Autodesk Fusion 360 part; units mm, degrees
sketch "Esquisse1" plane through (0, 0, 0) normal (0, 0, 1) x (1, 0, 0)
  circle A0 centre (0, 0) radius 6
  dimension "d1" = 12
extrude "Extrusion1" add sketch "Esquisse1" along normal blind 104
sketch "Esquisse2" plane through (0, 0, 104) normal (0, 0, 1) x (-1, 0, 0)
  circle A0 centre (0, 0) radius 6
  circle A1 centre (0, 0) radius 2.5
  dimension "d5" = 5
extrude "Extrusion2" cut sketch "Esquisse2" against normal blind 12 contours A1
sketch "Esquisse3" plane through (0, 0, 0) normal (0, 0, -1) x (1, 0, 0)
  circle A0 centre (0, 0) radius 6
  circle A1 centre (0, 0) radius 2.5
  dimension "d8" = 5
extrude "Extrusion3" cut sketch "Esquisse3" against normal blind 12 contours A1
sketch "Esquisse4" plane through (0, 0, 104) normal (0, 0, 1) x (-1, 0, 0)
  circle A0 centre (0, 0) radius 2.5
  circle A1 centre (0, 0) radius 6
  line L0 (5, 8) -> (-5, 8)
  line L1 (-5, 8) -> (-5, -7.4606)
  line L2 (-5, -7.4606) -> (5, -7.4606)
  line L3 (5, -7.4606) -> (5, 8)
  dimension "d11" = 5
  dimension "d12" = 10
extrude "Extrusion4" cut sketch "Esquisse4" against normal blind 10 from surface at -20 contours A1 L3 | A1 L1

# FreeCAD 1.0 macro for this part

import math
import FreeCAD as App
import Part
import Sketcher
from FreeCAD import Vector
Q = App.Units.Quantity

doc = App.newDocument("Part")
body = doc.addObject("PartDesign::Body", "Body")

# Sketch on XY plane
sketch1 = body.newObject("Sketcher::SketchObject", "Sketch")
sketch1.AttachmentSupport = (doc.getObject("XY_Plane"), [""])
sketch1.MapMode = "FlatFace"
sketch1.addGeometry(Part.Circle(Vector(0, 0, 0), Vector(0, 0, 1), 6), False)
sketch1.addConstraint([
    Sketcher.Constraint("Coincident", 0, 3, -1, 1),
    Sketcher.Constraint("Diameter", 0, Q("12 mm")),
])
pad1 = body.newObject("PartDesign::Pad", "Pad")
pad1.Profile = sketch1
pad1.Length = 104

# Sketch on XY plane
sketch2 = body.newObject("Sketcher::SketchObject", "Sketch001")
sketch2.AttachmentSupport = (doc.getObject("XY_Plane"), [""])
sketch2.MapMode = "FlatFace"
sketch2.AttachmentOffset = App.Placement(Vector(0, 0, 104), App.Rotation())
sketch2.addGeometry(Part.Circle(Vector(0, 0, 0), Vector(0, 0, 1), 2.5), False)
sketch2.addConstraint([
    Sketcher.Constraint("Coincident", 0, 3, -1, 1),
    Sketcher.Constraint("Diameter", 0, Q("5 mm")),
])
pocket1 = body.newObject("PartDesign::Pocket", "Pocket")
pocket1.Profile = sketch2
pocket1.Length = 12

# Sketch on XY plane
sketch3 = body.newObject("Sketcher::SketchObject", "Sketch002")
sketch3.AttachmentSupport = (doc.getObject("XY_Plane"), [""])
sketch3.MapMode = "FlatFace"
sketch3.addGeometry(Part.Circle(Vector(0, 0, 0), Vector(0, 0, 1), 2.5), False)
sketch3.addConstraint([
    Sketcher.Constraint("Coincident", 0, 3, -1, 1),
    Sketcher.Constraint("Diameter", 0, Q("5 mm")),
])
pocket2 = body.newObject("PartDesign::Pocket", "Pocket001")
pocket2.Profile = sketch3
pocket2.Length = 12
pocket2.Reversed = True

# Sketch on XY plane
sketch4 = body.newObject("Sketcher::SketchObject", "Sketch003")
sketch4.AttachmentSupport = (doc.getObject("XY_Plane"), [""])
sketch4.MapMode = "FlatFace"
sketch4.AttachmentOffset = App.Placement(Vector(0, 0, 84), App.Rotation())
sketch4.addGeometry([
    Part.ArcOfCircle(Part.Circle(Vector(0, 0, 0), Vector(0, 0, 1), 6), math.radians(146), math.radians(214)),
    Part.LineSegment(Vector(-5, -3, 0), Vector(-5, 3, 0)),
    Part.LineSegment(Vector(5, 3, 0), Vector(5, -3, 0)),
    Part.ArcOfCircle(Part.Circle(Vector(0, 0, 0), Vector(0, 0, 1), 6), math.radians(-34), math.radians(34)),
], False)
sketch4.addConstraint([
    Sketcher.Constraint("Coincident", 0, 1, 1, 2),
    Sketcher.Constraint("Coincident", 1, 1, 0, 2),
    Sketcher.Constraint("Coincident", 2, 1, 3, 2),
    Sketcher.Constraint("Coincident", 3, 1, 2, 2),
    Sketcher.Constraint("Vertical", 1),
    Sketcher.Constraint("Vertical", 2),
    Sketcher.Constraint("Coincident", 0, 3, -1, 1),
    Sketcher.Constraint("Coincident", 3, 3, -1, 1),
    Sketcher.Constraint("Equal", 0, 3),
    Sketcher.Constraint("Horizontal", 0, 1, 2, 1),
    Sketcher.Constraint("DistanceX", 0, 1, -1, 1, Q("5 mm")),
    Sketcher.Constraint("Radius", 0, Q("6 mm")),
])
pocket3 = body.newObject("PartDesign::Pocket", "Pocket002")
pocket3.Profile = sketch4
pocket3.Length = 10

doc.recompute()
